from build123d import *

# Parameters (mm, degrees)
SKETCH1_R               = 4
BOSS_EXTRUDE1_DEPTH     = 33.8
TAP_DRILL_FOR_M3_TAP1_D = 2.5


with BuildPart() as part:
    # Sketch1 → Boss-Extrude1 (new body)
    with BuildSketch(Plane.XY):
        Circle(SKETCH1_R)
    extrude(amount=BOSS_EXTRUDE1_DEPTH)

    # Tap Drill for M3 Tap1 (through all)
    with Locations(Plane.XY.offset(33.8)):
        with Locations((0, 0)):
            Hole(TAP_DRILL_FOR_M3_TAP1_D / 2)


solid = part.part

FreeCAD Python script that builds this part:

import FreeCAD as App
import Part
import Sketcher

V = App.Vector

doc = App.newDocument("Part")
body = doc.addObject("PartDesign::Body", "Body")

sketch1 = body.newObject("Sketcher::SketchObject", "Sketch")
sketch1.AttachmentSupport = (doc.getObject("XY_Plane"), [""])
sketch1.MapMode = "FlatFace"
sketch1.addGeometry(Part.Circle(V(0, 0, 0), V(0, 0, 1), 4), False)
sketch1.addConstraint(Sketcher.Constraint("Coincident", 0, 3, -1, 1))
sketch1.addConstraint(Sketcher.Constraint("Diameter", 0, 8.0))
pad1 = body.newObject("PartDesign::Pad", "Pad")
pad1.Profile = sketch1
pad1.Length = 33.8

sketch2 = body.newObject("Sketcher::SketchObject", "Sketch001")
sketch2.AttachmentSupport = (doc.getObject("XY_Plane"), [""])
sketch2.MapMode = "FlatFace"
sketch2.AttachmentOffset = App.Placement(V(0, 0, 33.8), App.Rotation())
sketch2.addGeometry(Part.Circle(V(0, 0, 0), V(0, 0, 1), 1.2), False)
sketch2.addConstraint(Sketcher.Constraint("Coincident", 0, 3, -1, 1))
sketch2.addConstraint(Sketcher.Constraint("Diameter", 0, 2.5))
doc.recompute()
hole = body.newObject("PartDesign::Hole", "Hole")
hole.Profile = sketch2
hole.ThreadType = "None"
hole.Diameter = 2.5
hole.DepthType = "ThroughAll"

doc.recompute()
